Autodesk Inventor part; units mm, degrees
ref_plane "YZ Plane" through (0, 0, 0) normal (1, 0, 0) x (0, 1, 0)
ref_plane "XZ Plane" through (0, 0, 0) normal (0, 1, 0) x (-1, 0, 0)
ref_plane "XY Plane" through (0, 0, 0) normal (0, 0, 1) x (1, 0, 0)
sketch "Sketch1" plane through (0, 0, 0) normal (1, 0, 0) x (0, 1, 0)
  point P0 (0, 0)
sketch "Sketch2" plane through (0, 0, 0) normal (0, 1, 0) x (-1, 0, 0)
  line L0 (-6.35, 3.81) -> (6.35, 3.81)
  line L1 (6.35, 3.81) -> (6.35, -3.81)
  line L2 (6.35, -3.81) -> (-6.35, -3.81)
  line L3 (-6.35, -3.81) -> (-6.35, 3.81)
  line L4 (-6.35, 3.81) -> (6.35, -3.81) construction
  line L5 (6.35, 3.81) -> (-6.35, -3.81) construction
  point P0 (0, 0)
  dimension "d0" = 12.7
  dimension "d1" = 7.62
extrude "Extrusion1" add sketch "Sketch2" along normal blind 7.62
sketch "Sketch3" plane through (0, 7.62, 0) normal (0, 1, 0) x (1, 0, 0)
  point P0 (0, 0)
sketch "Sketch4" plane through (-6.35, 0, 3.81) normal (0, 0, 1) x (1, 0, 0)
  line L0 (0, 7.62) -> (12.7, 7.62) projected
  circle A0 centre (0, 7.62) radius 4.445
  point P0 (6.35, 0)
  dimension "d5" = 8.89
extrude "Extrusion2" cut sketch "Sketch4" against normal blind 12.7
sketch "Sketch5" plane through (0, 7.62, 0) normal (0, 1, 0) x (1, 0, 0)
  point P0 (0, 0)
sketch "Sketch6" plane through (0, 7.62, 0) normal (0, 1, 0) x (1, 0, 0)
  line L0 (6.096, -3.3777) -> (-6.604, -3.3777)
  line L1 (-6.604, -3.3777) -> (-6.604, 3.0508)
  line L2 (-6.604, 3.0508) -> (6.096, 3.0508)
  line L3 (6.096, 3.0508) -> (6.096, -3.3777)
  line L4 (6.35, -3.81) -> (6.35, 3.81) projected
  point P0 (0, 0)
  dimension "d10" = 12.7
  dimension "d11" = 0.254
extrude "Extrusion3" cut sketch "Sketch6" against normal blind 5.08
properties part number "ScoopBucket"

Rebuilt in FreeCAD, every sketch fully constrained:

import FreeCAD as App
import Part
import Sketcher
from FreeCAD import Vector
Q = App.Units.Quantity


def add_polygon(sketch, points):
    """Adds a closed chain of lines whose ends are joined by coincident constraints."""
    first, n = sketch.GeometryCount, len(points)
    for a, b in zip(points, points[1:] + points[:1]):
        sketch.addGeometry(Part.LineSegment(App.Vector(*a, 0), App.Vector(*b, 0)), False)
    for i in range(n):
        sketch.addConstraint(Sketcher.Constraint("Coincident", first + i, 2, first + (i + 1) % n, 1))

doc = App.newDocument("Part")
body = doc.addObject("PartDesign::Body", "Body")

sketch1 = body.newObject("Sketcher::SketchObject", "Sketch")
sketch1.AttachmentSupport = (doc.getObject("XZ_Plane"), [""])
sketch1.MapMode = "FlatFace"
add_polygon(sketch1, [(-6.35, 3.81), (6.35, 3.81), (6.35, -3.81), (-6.35, -3.81)])
sketch1.addConstraint([
    Sketcher.Constraint("Horizontal", 0),
    Sketcher.Constraint("Vertical", 1),
    Sketcher.Constraint("Horizontal", 2),
    Sketcher.Constraint("Vertical", 3),
    Sketcher.Constraint("Symmetric", 0, 2, 2, 2, -1, 1),
    Sketcher.Constraint("DistanceX", 0, 1, 0, 2, Q("0.5 in")),
    Sketcher.Constraint("DistanceY", 1, 2, 1, 1, Q("0.3 in")),
])
pad1 = body.newObject("PartDesign::Pad", "Pad")
pad1.Profile = sketch1
pad1.Length = Q("0.3 in")
pad1.Reversed = True

sketch2 = body.newObject("Sketcher::SketchObject", "Sketch001")
sketch2.AttachmentSupport = (doc.getObject("XY_Plane"), [""])
sketch2.MapMode = "FlatFace"
sketch2.AttachmentOffset = App.Placement(Vector(0, 0, 0.15 * 25.4), App.Rotation())
sketch2.addGeometry(Part.Circle(Vector(-6.35, 7.62, 0), Vector(0, 0, 1), 4.445), False)
sketch2.addConstraint([
    Sketcher.Constraint("Diameter", 0, Q("0.35 in")),
    Sketcher.Constraint("DistanceY", -1, 1, 0, 3, Q("0.3 in")),
    Sketcher.Constraint("DistanceX", 0, 3, -1, 1, Q("0.25 in")),
])
pocket1 = body.newObject("PartDesign::Pocket", "Pocket")
pocket1.Profile = sketch2
pocket1.Length = Q("0.5 in")

sketch3 = body.newObject("Sketcher::SketchObject", "Sketch002")
sketch3.AttachmentSupport = (doc.getObject("XZ_Plane"), [""])
sketch3.MapMode = "FlatFace"
sketch3.AttachmentOffset = App.Placement(Vector(0, 0, -0.3 * 25.4), App.Rotation())
add_polygon(sketch3, [(-6.604, 3.3777), (6.096, 3.3777), (6.096, -3.0508), (-6.604, -3.0508)])
sketch3.addConstraint([
    Sketcher.Constraint("Horizontal", 0),
    Sketcher.Constraint("Vertical", 1),
    Sketcher.Constraint("Horizontal", 2),
    Sketcher.Constraint("Vertical", 3),
    Sketcher.Constraint("DistanceX", 0, 1, 0, 2, Q("0.5 in")),
    Sketcher.Constraint("DistanceX", -1, 1, 0, 2, Q("0.24 in")),
    Sketcher.Constraint("DistanceY", 1, 2, 1, 1, Q("0.2531 in")),
    Sketcher.Constraint("DistanceY", 1, 2, -1, 1, Q("0.1201 in")),
])
pocket2 = body.newObject("PartDesign::Pocket", "Pocket001")
pocket2.Profile = sketch3
pocket2.Length = Q("0.2 in")
pocket2.Reversed = True

doc.recompute()
